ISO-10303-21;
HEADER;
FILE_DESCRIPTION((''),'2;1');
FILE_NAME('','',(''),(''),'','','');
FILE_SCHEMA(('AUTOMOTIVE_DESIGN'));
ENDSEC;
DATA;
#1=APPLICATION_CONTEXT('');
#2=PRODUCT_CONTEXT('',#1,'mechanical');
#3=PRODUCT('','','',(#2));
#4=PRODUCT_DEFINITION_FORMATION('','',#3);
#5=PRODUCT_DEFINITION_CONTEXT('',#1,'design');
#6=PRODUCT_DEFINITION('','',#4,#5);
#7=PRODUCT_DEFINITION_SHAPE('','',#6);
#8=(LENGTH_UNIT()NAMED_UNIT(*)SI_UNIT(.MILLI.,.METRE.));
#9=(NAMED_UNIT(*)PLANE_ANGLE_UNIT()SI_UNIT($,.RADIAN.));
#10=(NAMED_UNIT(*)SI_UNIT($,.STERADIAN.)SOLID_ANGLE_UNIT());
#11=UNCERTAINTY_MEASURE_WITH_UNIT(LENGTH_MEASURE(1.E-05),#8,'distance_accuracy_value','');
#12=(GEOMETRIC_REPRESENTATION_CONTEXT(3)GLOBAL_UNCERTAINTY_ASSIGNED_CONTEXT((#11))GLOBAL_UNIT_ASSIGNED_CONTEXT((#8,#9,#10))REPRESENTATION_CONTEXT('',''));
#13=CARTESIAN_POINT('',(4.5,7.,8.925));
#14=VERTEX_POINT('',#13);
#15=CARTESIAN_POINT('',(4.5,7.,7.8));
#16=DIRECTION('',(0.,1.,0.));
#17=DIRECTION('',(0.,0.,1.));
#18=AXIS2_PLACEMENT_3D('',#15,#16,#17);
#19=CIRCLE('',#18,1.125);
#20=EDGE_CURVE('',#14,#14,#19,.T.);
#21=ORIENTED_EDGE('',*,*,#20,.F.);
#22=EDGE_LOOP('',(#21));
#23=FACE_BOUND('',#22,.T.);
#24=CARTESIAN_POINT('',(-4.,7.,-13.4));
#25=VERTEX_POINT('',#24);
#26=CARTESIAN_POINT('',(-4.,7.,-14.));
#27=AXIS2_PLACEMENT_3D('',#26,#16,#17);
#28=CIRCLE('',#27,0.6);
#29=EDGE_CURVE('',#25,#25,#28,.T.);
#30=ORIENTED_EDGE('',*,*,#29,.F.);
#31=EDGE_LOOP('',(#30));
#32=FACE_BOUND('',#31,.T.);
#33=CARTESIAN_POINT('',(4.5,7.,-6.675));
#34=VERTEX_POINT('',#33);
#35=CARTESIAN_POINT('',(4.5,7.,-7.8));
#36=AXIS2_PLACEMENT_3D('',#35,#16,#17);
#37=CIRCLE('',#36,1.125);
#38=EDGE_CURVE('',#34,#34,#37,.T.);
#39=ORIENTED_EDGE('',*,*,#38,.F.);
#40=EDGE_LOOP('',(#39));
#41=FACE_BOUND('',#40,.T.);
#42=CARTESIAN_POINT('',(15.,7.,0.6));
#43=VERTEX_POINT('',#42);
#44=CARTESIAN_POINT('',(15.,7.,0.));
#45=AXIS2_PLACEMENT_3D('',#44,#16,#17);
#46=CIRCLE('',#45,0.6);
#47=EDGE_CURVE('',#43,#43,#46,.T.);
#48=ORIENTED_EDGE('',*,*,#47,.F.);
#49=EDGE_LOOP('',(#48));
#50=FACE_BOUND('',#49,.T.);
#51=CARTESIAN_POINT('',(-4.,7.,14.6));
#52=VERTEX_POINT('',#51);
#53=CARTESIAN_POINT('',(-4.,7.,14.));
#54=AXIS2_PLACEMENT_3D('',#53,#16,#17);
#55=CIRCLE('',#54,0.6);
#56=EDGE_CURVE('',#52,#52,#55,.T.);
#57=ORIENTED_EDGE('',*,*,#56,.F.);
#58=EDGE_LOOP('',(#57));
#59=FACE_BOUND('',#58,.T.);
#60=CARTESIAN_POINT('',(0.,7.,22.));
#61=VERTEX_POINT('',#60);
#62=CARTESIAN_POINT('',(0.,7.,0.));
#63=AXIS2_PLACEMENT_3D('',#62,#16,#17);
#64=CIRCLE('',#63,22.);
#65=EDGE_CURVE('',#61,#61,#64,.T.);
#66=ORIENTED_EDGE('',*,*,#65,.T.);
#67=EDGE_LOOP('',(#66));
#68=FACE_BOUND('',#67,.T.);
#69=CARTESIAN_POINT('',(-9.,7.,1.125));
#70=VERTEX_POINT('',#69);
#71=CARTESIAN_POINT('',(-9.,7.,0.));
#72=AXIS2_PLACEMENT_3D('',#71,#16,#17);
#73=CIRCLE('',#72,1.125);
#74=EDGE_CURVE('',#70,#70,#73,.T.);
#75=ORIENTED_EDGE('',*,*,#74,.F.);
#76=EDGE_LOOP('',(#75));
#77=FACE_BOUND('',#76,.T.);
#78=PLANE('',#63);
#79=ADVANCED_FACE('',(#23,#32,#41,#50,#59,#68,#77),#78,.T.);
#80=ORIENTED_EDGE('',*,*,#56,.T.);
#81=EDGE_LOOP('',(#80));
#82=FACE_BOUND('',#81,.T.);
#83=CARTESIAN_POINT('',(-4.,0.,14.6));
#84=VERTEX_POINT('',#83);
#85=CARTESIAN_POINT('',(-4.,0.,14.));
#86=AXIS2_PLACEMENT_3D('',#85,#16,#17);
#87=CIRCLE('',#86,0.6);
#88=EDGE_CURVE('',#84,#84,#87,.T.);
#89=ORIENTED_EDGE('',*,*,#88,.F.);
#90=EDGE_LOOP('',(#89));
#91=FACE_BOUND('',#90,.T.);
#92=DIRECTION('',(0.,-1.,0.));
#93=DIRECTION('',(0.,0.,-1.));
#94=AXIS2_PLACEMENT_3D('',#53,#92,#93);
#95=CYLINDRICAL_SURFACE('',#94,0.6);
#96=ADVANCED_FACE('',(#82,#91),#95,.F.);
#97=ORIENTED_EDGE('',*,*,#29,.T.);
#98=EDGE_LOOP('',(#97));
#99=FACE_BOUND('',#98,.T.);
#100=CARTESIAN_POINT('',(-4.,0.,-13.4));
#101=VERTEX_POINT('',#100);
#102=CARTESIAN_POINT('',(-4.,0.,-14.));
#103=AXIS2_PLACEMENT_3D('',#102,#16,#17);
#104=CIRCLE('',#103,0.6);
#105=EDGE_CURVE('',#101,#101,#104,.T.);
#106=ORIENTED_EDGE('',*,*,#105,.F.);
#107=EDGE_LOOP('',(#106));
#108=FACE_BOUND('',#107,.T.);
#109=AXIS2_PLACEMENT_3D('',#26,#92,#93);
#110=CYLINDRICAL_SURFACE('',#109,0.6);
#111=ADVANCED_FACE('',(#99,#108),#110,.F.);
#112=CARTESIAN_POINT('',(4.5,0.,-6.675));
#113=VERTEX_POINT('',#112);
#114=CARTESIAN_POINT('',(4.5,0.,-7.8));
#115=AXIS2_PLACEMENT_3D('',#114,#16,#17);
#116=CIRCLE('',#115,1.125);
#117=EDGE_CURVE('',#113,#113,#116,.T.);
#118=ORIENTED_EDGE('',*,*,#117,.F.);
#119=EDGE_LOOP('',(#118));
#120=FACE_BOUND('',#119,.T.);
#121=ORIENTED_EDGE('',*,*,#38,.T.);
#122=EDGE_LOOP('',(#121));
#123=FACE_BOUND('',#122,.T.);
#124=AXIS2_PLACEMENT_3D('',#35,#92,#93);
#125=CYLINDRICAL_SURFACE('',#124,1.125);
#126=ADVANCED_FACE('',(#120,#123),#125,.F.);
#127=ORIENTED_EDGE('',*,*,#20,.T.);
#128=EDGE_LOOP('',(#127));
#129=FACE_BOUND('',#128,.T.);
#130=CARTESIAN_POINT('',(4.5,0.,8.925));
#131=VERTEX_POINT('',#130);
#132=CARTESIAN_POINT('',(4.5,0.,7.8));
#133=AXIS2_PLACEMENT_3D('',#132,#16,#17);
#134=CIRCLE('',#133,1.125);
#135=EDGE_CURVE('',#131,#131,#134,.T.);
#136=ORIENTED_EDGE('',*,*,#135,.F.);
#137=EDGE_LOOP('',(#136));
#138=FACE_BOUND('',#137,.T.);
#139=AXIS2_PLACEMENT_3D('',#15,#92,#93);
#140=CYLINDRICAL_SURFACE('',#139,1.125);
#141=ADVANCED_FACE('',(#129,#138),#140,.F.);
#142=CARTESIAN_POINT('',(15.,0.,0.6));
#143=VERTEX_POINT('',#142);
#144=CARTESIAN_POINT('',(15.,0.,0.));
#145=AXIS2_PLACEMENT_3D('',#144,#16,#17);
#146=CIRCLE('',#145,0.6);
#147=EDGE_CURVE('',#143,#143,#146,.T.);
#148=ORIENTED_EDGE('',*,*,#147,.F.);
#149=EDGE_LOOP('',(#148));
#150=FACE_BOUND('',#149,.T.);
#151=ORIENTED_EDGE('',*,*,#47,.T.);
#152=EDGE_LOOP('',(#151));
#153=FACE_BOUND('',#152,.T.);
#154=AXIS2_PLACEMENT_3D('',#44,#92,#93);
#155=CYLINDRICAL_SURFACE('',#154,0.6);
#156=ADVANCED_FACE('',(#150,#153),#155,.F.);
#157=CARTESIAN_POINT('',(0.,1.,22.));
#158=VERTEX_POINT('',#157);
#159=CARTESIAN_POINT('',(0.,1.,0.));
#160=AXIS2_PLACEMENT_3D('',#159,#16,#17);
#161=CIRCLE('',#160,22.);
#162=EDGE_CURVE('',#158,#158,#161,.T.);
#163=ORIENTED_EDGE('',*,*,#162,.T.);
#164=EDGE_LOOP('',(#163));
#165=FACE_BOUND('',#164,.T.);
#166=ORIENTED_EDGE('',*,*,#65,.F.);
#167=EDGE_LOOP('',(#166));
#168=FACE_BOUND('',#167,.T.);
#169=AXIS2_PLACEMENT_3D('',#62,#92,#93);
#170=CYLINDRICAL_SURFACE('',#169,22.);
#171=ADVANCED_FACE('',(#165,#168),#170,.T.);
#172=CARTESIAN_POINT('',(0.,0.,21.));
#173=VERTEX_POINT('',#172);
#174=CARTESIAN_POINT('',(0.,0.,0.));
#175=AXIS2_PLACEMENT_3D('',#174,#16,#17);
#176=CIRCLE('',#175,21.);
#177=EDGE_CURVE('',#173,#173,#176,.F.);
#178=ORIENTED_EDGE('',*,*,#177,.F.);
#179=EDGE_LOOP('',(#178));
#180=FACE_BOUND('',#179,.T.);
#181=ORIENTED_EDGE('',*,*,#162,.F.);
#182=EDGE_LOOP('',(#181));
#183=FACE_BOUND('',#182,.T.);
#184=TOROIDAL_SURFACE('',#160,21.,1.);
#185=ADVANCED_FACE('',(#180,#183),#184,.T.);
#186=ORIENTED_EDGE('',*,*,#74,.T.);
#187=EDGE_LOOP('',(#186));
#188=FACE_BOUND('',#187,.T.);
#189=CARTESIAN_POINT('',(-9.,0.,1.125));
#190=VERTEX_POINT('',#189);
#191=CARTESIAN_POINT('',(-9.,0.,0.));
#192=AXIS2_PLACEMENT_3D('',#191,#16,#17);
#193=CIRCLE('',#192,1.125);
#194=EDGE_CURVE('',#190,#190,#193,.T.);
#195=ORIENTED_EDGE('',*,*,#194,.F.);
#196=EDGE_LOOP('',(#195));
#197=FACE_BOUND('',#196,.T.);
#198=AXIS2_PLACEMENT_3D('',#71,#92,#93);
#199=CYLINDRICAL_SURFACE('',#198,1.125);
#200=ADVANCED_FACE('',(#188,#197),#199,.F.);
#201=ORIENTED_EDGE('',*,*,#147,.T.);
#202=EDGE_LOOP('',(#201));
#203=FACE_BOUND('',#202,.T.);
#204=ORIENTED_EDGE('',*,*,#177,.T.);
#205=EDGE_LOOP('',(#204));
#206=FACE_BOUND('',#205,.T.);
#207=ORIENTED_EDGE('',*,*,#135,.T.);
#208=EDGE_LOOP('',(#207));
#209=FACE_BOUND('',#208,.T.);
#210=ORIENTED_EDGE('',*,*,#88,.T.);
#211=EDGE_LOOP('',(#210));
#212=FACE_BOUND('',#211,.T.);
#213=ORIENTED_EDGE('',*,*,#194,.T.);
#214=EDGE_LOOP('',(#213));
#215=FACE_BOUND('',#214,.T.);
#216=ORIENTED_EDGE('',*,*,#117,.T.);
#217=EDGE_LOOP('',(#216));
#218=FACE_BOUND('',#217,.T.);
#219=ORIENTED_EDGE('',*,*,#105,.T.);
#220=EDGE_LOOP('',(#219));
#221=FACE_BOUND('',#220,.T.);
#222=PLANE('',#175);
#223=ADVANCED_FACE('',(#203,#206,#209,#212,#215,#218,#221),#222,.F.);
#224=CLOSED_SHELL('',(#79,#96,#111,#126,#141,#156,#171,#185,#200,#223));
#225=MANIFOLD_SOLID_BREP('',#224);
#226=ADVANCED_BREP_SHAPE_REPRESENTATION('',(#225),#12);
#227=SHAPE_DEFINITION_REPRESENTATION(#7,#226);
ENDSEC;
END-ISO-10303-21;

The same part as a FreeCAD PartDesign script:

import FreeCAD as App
import Part
import Sketcher
Q = App.Units.Quantity


def edges_at(feature, points):
    """Names of the edges that pass closest to the given points."""
    edges = feature.Shape.Edges
    near = lambda p: min(range(len(edges)), key=lambda i: edges[i].distToShape(Part.Vertex(*p))[0])
    return sorted({f"Edge{near(p) + 1}" for p in points})

doc = App.newDocument("Part")
body = doc.addObject("PartDesign::Body", "Body")

sketch1 = body.newObject("Sketcher::SketchObject", "Sketch")
sketch1.AttachmentSupport = (doc.getObject("XZ_Plane"), [""])
sketch1.MapMode = "FlatFace"
sketch1.addGeometry(Part.Circle(App.Vector(0, 0, 0), App.Vector(0, 0, 1), 22), False)
sketch1.addGeometry(Part.Circle(App.Vector(-4, -14, 0), App.Vector(0, 0, 1), 0.6), False)
sketch1.addGeometry(Part.Circle(App.Vector(-9, 0, 0), App.Vector(0, 0, 1), 1.1), False)
sketch1.addGeometry(Part.Circle(App.Vector(-4, 14, 0), App.Vector(0, 0, 1), 0.6), False)
sketch1.addGeometry(Part.Circle(App.Vector(4.5, -7.8, 0), App.Vector(0, 0, 1), 1.1), False)
sketch1.addGeometry(Part.Circle(App.Vector(15, 0, 0), App.Vector(0, 0, 1), 0.6), False)
sketch1.addGeometry(Part.Circle(App.Vector(4.5, 7.8, 0), App.Vector(0, 0, 1), 1.1), False)
sketch1.addConstraint(Sketcher.Constraint("Coincident", 0, 3, -1, 1))
sketch1.addConstraint(Sketcher.Constraint("Equal", 1, 3))
sketch1.addConstraint(Sketcher.Constraint("Equal", 2, 4))
sketch1.addConstraint(Sketcher.Constraint("Equal", 3, 5))
sketch1.addConstraint(Sketcher.Constraint("Equal", 4, 6))
sketch1.addConstraint(Sketcher.Constraint("Symmetric", 1, 3, 3, 3, -1))
sketch1.addConstraint(Sketcher.Constraint("Symmetric", 4, 3, 6, 3, -1))
sketch1.addConstraint(Sketcher.Constraint("PointOnObject", 2, 3, -1))
sketch1.addConstraint(Sketcher.Constraint("PointOnObject", 5, 3, -1))
sketch1.addConstraint(Sketcher.Constraint("Diameter", 0, Q("44 mm")))
sketch1.addConstraint(Sketcher.Constraint("Diameter", 1, Q("1.2 mm")))
sketch1.addConstraint(Sketcher.Constraint("Diameter", 2, Q("2.25 mm")))
sketch1.addConstraint(Sketcher.Constraint("DistanceX", 1, 3, -1, 1, Q("4 mm")))
sketch1.addConstraint(Sketcher.Constraint("DistanceY", 1, 3, -1, 1, Q("14 mm")))
sketch1.addConstraint(Sketcher.Constraint("DistanceX", 2, 3, -1, 1, Q("9 mm")))
sketch1.addConstraint(Sketcher.Constraint("DistanceX", -1, 1, 5, 3, Q("15 mm")))
sketch1.addConstraint(Sketcher.Constraint("DistanceX", -1, 1, 4, 3, Q("4.5 mm")))
sketch1.addConstraint(Sketcher.Constraint("DistanceY", 4, 3, -1, 1, Q("7.8 mm")))
pad1 = body.newObject("PartDesign::Pad", "Pad")
pad1.Profile = sketch1
pad1.Length = 7
pad1.Reversed = True
doc.recompute()

fillet = body.newObject("PartDesign::Fillet", "Fillet")
fillet.Base = (pad1, edges_at(pad1, [(0, 0, -22)]))
fillet.Radius = 1

doc.recompute()
